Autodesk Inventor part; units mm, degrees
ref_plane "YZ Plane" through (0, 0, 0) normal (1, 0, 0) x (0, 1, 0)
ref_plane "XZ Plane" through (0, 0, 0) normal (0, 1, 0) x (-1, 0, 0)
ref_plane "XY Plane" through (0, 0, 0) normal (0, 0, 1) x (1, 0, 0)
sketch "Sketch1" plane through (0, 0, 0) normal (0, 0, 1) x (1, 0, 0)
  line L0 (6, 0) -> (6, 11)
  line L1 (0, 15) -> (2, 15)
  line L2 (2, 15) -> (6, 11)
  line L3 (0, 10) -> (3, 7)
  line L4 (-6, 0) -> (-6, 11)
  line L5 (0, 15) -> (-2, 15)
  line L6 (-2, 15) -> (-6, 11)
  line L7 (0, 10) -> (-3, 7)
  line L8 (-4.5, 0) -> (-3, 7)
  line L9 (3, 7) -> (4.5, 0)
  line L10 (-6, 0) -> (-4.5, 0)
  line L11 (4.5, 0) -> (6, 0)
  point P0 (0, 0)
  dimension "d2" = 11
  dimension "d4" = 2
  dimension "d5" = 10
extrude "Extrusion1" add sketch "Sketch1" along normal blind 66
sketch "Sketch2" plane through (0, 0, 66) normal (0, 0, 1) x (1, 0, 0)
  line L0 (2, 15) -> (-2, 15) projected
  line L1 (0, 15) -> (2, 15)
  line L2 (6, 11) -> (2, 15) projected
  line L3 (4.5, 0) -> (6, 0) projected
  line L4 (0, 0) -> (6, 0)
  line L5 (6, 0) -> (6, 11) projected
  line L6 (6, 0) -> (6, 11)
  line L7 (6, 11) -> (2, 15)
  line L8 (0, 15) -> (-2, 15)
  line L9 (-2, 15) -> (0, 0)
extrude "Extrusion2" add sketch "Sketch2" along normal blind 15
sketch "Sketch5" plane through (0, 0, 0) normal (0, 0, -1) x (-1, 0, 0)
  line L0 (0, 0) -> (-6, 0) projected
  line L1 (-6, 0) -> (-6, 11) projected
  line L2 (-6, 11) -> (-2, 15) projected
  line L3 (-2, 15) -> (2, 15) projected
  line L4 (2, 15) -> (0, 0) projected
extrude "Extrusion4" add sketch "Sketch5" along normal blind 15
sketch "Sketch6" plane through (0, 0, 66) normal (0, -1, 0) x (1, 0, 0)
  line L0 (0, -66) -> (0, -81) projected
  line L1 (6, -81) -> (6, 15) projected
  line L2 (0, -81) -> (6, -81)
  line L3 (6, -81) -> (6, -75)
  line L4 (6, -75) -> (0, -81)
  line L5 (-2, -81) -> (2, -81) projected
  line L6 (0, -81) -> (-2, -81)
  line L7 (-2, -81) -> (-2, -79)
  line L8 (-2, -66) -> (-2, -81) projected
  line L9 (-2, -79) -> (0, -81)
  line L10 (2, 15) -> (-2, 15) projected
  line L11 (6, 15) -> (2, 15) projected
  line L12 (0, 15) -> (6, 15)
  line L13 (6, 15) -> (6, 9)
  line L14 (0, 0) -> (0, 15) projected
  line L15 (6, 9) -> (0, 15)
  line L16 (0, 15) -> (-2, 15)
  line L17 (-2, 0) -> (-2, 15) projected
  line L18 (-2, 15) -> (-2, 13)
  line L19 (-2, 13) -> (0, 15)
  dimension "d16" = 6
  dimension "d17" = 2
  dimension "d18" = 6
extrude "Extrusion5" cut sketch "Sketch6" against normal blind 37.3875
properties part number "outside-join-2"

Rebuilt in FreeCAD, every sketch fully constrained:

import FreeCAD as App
import Part
import Sketcher

V = App.Vector
Q = App.Units.Quantity


def add_polygon(sketch, points):
    """Adds a closed chain of lines whose ends are joined by coincident constraints."""
    first, n = sketch.GeometryCount, len(points)
    for a, b in zip(points, points[1:] + points[:1]):
        sketch.addGeometry(Part.LineSegment(App.Vector(*a, 0), App.Vector(*b, 0)), False)
    for i in range(n):
        sketch.addConstraint(Sketcher.Constraint("Coincident", first + i, 2, first + (i + 1) % n, 1))

doc = App.newDocument("Part")
params = doc.addObject("Spreadsheet::Sheet", "Params")
for row, (alias, value) in enumerate([
    ("sketch1_height", "11 mm"),
    ("sketch1_width", "1.5 mm"),
    ("pad1_length", "66 mm"),
    ("sketch2_width", "4 mm"),
    ("sketch2_width2", "6 mm"),
    ("sketch2_height", "11 mm"),
    ("pad2_length", "15 mm"),
    ("sketch3_width", "6 mm"),
    ("sketch3_width2", "4 mm"),
    ("sketch3_height", "11 mm"),
    ("pad3_length", "15 mm"),
    ("sketch4_width", "6 mm"),
    ("sketch4_width2", "2 mm"),
    ("pocket1_length", "37.3875 mm"),
], start=1):
    params.set(f"A{row}", alias)
    params.set(f"B{row}", "=" + value)
    params.setAlias(f"B{row}", alias)

body = doc.addObject("PartDesign::Body", "Body")

sketch1 = body.newObject("Sketcher::SketchObject", "Sketch")
sketch1.AttachmentSupport = (doc.getObject("XY_Plane"), [""])
sketch1.MapMode = "FlatFace"
add_polygon(sketch1, [(4.5, 0), (6, 0), (6, 11), (2, 15), (-2, 15), (-6, 11), (-6, 0), (-4.5, 0), (-3, 7), (0, 10), (3, 7)])
sketch1.addConstraint(Sketcher.Constraint("Horizontal", 0))
sketch1.addConstraint(Sketcher.Constraint("Vertical", 1))
sketch1.addConstraint(Sketcher.Constraint("Horizontal", 3))
sketch1.addConstraint(Sketcher.Constraint("Vertical", 5))
sketch1.addConstraint(Sketcher.Constraint("Horizontal", 6))
sketch1.addConstraint(Sketcher.Constraint("Symmetric", 0, 2, 5, 2, -1, 1))
sketch1.addConstraint(Sketcher.Constraint("Symmetric", 7, 2, 9, 2, -2))
sketch1.addConstraint(Sketcher.Constraint("Symmetric", 6, 2, 10, 2, -2))
sketch1.addConstraint(Sketcher.Constraint("PointOnObject", 8, 2, -2))
sketch1.addConstraint(Sketcher.Constraint("Perpendicular", 2, 4))
sketch1.addConstraint(Sketcher.Constraint("Parallel", 4, 8))
sketch1.addConstraint(Sketcher.Constraint("Perpendicular", 8, 9))
sketch1.addConstraint(Sketcher.Constraint("Horizontal", 1, 2, 4, 2))
sketch1.addConstraint(Sketcher.Constraint("DistanceY", 1, 1, 1, 2, 11.0))
sketch1.addConstraint(Sketcher.Constraint("DistanceX", -1, 1, 2, 2, 2.0))
sketch1.addConstraint(Sketcher.Constraint("DistanceY", -1, 1, 8, 2, 10.0))
sketch1.addConstraint(Sketcher.Constraint("DistanceX", 0, 1, 0, 2, 1.5))
sketch1.addConstraint(Sketcher.Constraint("DistanceX", -1, 1, 0, 2, 6.0))
sketch1.addConstraint(Sketcher.Constraint("DistanceX", 7, 2, -1, 1, 3.0))
sketch1.setExpression("Constraints[24]", "Params.sketch1_height")
sketch1.setExpression("Constraints[27]", "Params.sketch1_width")
pad1 = body.newObject("PartDesign::Pad", "Pad")
pad1.Profile = sketch1
pad1.setExpression("Length", "Params.pad1_length")

sketch2 = body.newObject("Sketcher::SketchObject", "Sketch001")
sketch2.AttachmentSupport = (doc.getObject("XY_Plane"), [""])
sketch2.MapMode = "FlatFace"
sketch2.AttachmentOffset = App.Placement(V(0, 0, 66), App.Rotation())
add_polygon(sketch2, [(6, 11), (2, 15), (-2, 15), (0, 0), (6, 0)])
sketch2.addConstraint(Sketcher.Constraint("Horizontal", 1))
sketch2.addConstraint(Sketcher.Constraint("Horizontal", 3))
sketch2.addConstraint(Sketcher.Constraint("Vertical", 4))
sketch2.addConstraint(Sketcher.Constraint("Coincident", 2, 2, -1, 1))
sketch2.addConstraint(Sketcher.Constraint("DistanceX", 1, 2, 1, 1, 4.0))
sketch2.addConstraint(Sketcher.Constraint("DistanceX", 3, 1, 3, 2, 6.0))
sketch2.addConstraint(Sketcher.Constraint("DistanceY", 4, 1, 4, 2, 11.0))
sketch2.addConstraint(Sketcher.Constraint("Angle", 0, Q("135 deg")))
sketch2.addConstraint(Sketcher.Constraint("DistanceX", -1, 1, 0, 2, 2.0))
sketch2.setExpression("Constraints[9]", "Params.sketch2_width")
sketch2.setExpression("Constraints[10]", "Params.sketch2_width2")
sketch2.setExpression("Constraints[11]", "Params.sketch2_height")
pad2 = body.newObject("PartDesign::Pad", "Pad001")
pad2.Profile = sketch2
pad2.setExpression("Length", "Params.pad2_length")

sketch3 = body.newObject("Sketcher::SketchObject", "Sketch002")
sketch3.AttachmentSupport = (doc.getObject("XY_Plane"), [""])
sketch3.MapMode = "FlatFace"
add_polygon(sketch3, [(6, 0), (0, 0), (-2, 15), (2, 15), (6, 11)])
sketch3.addConstraint(Sketcher.Constraint("Horizontal", 0))
sketch3.addConstraint(Sketcher.Constraint("Horizontal", 2))
sketch3.addConstraint(Sketcher.Constraint("Vertical", 4))
sketch3.addConstraint(Sketcher.Constraint("Coincident", 0, 2, -1, 1))
sketch3.addConstraint(Sketcher.Constraint("DistanceX", 0, 2, 0, 1, 6.0))
sketch3.addConstraint(Sketcher.Constraint("DistanceX", 2, 1, 2, 2, 4.0))
sketch3.addConstraint(Sketcher.Constraint("DistanceY", 4, 2, 4, 1, 11.0))
sketch3.addConstraint(Sketcher.Constraint("Angle", 3, Q("-45 deg")))
sketch3.addConstraint(Sketcher.Constraint("DistanceX", 1, 2, -1, 1, 2.0))
sketch3.setExpression("Constraints[9]", "Params.sketch3_width")
sketch3.setExpression("Constraints[10]", "Params.sketch3_width2")
sketch3.setExpression("Constraints[11]", "Params.sketch3_height")
pad3 = body.newObject("PartDesign::Pad", "Pad002")
pad3.Profile = sketch3
pad3.setExpression("Length", "Params.pad3_length")
pad3.Reversed = True

sketch4 = body.newObject("Sketcher::SketchObject", "Sketch003")
sketch4.AttachmentSupport = (doc.getObject("XZ_Plane"), [""])
sketch4.MapMode = "FlatFace"
add_polygon(sketch4, [(0, -15), (6, -15), (6, -9)])
add_polygon(sketch4, [(-2, -15), (0, -15), (-2, -13)])
add_polygon(sketch4, [(-2, 79), (0, 81), (-2, 81)])
add_polygon(sketch4, [(0, 81), (6, 75), (6, 81)])
sketch4.addConstraint(Sketcher.Constraint("Horizontal", 0))
sketch4.addConstraint(Sketcher.Constraint("Vertical", 1))
sketch4.addConstraint(Sketcher.Constraint("Horizontal", 3))
sketch4.addConstraint(Sketcher.Constraint("Vertical", 5))
sketch4.addConstraint(Sketcher.Constraint("Horizontal", 7))
sketch4.addConstraint(Sketcher.Constraint("Vertical", 8))
sketch4.addConstraint(Sketcher.Constraint("Vertical", 10))
sketch4.addConstraint(Sketcher.Constraint("Horizontal", 11))
sketch4.addConstraint(Sketcher.Constraint("Coincident", 3, 2, 2, 2))
sketch4.addConstraint(Sketcher.Constraint("Coincident", 11, 2, 6, 2))
sketch4.addConstraint(Sketcher.Constraint("PointOnObject", 2, 2, -2))
sketch4.addConstraint(Sketcher.Constraint("PointOnObject", 6, 2, -2))
sketch4.addConstraint(Sketcher.Constraint("Perpendicular", 2, 4))
sketch4.addConstraint(Sketcher.Constraint("Perpendicular", 4, 6))
sketch4.addConstraint(Sketcher.Constraint("Perpendicular", 6, 9))
sketch4.addConstraint(Sketcher.Constraint("Vertical", 5, 2, 7, 2))
sketch4.addConstraint(Sketcher.Constraint("Vertical", 1, 2, 9, 2))
sketch4.addConstraint(Sketcher.Constraint("Equal", 11, 1))
sketch4.addConstraint(Sketcher.Constraint("DistanceX", 0, 1, 0, 2, 6.0))
sketch4.addConstraint(Sketcher.Constraint("DistanceX", 3, 1, 3, 2, 2.0))
sketch4.addConstraint(Sketcher.Constraint("DistanceY", 0, 2, -1, 1, 15.0))
sketch4.addConstraint(Sketcher.Constraint("DistanceY", -1, 1, 6, 2, 81.0))
sketch4.setExpression("Constraints[30]", "Params.sketch4_width")
sketch4.setExpression("Constraints[31]", "Params.sketch4_width2")
pocket1 = body.newObject("PartDesign::Pocket", "Pocket")
pocket1.Profile = sketch4
pocket1.setExpression("Length", "Params.pocket1_length")

doc.recompute()
